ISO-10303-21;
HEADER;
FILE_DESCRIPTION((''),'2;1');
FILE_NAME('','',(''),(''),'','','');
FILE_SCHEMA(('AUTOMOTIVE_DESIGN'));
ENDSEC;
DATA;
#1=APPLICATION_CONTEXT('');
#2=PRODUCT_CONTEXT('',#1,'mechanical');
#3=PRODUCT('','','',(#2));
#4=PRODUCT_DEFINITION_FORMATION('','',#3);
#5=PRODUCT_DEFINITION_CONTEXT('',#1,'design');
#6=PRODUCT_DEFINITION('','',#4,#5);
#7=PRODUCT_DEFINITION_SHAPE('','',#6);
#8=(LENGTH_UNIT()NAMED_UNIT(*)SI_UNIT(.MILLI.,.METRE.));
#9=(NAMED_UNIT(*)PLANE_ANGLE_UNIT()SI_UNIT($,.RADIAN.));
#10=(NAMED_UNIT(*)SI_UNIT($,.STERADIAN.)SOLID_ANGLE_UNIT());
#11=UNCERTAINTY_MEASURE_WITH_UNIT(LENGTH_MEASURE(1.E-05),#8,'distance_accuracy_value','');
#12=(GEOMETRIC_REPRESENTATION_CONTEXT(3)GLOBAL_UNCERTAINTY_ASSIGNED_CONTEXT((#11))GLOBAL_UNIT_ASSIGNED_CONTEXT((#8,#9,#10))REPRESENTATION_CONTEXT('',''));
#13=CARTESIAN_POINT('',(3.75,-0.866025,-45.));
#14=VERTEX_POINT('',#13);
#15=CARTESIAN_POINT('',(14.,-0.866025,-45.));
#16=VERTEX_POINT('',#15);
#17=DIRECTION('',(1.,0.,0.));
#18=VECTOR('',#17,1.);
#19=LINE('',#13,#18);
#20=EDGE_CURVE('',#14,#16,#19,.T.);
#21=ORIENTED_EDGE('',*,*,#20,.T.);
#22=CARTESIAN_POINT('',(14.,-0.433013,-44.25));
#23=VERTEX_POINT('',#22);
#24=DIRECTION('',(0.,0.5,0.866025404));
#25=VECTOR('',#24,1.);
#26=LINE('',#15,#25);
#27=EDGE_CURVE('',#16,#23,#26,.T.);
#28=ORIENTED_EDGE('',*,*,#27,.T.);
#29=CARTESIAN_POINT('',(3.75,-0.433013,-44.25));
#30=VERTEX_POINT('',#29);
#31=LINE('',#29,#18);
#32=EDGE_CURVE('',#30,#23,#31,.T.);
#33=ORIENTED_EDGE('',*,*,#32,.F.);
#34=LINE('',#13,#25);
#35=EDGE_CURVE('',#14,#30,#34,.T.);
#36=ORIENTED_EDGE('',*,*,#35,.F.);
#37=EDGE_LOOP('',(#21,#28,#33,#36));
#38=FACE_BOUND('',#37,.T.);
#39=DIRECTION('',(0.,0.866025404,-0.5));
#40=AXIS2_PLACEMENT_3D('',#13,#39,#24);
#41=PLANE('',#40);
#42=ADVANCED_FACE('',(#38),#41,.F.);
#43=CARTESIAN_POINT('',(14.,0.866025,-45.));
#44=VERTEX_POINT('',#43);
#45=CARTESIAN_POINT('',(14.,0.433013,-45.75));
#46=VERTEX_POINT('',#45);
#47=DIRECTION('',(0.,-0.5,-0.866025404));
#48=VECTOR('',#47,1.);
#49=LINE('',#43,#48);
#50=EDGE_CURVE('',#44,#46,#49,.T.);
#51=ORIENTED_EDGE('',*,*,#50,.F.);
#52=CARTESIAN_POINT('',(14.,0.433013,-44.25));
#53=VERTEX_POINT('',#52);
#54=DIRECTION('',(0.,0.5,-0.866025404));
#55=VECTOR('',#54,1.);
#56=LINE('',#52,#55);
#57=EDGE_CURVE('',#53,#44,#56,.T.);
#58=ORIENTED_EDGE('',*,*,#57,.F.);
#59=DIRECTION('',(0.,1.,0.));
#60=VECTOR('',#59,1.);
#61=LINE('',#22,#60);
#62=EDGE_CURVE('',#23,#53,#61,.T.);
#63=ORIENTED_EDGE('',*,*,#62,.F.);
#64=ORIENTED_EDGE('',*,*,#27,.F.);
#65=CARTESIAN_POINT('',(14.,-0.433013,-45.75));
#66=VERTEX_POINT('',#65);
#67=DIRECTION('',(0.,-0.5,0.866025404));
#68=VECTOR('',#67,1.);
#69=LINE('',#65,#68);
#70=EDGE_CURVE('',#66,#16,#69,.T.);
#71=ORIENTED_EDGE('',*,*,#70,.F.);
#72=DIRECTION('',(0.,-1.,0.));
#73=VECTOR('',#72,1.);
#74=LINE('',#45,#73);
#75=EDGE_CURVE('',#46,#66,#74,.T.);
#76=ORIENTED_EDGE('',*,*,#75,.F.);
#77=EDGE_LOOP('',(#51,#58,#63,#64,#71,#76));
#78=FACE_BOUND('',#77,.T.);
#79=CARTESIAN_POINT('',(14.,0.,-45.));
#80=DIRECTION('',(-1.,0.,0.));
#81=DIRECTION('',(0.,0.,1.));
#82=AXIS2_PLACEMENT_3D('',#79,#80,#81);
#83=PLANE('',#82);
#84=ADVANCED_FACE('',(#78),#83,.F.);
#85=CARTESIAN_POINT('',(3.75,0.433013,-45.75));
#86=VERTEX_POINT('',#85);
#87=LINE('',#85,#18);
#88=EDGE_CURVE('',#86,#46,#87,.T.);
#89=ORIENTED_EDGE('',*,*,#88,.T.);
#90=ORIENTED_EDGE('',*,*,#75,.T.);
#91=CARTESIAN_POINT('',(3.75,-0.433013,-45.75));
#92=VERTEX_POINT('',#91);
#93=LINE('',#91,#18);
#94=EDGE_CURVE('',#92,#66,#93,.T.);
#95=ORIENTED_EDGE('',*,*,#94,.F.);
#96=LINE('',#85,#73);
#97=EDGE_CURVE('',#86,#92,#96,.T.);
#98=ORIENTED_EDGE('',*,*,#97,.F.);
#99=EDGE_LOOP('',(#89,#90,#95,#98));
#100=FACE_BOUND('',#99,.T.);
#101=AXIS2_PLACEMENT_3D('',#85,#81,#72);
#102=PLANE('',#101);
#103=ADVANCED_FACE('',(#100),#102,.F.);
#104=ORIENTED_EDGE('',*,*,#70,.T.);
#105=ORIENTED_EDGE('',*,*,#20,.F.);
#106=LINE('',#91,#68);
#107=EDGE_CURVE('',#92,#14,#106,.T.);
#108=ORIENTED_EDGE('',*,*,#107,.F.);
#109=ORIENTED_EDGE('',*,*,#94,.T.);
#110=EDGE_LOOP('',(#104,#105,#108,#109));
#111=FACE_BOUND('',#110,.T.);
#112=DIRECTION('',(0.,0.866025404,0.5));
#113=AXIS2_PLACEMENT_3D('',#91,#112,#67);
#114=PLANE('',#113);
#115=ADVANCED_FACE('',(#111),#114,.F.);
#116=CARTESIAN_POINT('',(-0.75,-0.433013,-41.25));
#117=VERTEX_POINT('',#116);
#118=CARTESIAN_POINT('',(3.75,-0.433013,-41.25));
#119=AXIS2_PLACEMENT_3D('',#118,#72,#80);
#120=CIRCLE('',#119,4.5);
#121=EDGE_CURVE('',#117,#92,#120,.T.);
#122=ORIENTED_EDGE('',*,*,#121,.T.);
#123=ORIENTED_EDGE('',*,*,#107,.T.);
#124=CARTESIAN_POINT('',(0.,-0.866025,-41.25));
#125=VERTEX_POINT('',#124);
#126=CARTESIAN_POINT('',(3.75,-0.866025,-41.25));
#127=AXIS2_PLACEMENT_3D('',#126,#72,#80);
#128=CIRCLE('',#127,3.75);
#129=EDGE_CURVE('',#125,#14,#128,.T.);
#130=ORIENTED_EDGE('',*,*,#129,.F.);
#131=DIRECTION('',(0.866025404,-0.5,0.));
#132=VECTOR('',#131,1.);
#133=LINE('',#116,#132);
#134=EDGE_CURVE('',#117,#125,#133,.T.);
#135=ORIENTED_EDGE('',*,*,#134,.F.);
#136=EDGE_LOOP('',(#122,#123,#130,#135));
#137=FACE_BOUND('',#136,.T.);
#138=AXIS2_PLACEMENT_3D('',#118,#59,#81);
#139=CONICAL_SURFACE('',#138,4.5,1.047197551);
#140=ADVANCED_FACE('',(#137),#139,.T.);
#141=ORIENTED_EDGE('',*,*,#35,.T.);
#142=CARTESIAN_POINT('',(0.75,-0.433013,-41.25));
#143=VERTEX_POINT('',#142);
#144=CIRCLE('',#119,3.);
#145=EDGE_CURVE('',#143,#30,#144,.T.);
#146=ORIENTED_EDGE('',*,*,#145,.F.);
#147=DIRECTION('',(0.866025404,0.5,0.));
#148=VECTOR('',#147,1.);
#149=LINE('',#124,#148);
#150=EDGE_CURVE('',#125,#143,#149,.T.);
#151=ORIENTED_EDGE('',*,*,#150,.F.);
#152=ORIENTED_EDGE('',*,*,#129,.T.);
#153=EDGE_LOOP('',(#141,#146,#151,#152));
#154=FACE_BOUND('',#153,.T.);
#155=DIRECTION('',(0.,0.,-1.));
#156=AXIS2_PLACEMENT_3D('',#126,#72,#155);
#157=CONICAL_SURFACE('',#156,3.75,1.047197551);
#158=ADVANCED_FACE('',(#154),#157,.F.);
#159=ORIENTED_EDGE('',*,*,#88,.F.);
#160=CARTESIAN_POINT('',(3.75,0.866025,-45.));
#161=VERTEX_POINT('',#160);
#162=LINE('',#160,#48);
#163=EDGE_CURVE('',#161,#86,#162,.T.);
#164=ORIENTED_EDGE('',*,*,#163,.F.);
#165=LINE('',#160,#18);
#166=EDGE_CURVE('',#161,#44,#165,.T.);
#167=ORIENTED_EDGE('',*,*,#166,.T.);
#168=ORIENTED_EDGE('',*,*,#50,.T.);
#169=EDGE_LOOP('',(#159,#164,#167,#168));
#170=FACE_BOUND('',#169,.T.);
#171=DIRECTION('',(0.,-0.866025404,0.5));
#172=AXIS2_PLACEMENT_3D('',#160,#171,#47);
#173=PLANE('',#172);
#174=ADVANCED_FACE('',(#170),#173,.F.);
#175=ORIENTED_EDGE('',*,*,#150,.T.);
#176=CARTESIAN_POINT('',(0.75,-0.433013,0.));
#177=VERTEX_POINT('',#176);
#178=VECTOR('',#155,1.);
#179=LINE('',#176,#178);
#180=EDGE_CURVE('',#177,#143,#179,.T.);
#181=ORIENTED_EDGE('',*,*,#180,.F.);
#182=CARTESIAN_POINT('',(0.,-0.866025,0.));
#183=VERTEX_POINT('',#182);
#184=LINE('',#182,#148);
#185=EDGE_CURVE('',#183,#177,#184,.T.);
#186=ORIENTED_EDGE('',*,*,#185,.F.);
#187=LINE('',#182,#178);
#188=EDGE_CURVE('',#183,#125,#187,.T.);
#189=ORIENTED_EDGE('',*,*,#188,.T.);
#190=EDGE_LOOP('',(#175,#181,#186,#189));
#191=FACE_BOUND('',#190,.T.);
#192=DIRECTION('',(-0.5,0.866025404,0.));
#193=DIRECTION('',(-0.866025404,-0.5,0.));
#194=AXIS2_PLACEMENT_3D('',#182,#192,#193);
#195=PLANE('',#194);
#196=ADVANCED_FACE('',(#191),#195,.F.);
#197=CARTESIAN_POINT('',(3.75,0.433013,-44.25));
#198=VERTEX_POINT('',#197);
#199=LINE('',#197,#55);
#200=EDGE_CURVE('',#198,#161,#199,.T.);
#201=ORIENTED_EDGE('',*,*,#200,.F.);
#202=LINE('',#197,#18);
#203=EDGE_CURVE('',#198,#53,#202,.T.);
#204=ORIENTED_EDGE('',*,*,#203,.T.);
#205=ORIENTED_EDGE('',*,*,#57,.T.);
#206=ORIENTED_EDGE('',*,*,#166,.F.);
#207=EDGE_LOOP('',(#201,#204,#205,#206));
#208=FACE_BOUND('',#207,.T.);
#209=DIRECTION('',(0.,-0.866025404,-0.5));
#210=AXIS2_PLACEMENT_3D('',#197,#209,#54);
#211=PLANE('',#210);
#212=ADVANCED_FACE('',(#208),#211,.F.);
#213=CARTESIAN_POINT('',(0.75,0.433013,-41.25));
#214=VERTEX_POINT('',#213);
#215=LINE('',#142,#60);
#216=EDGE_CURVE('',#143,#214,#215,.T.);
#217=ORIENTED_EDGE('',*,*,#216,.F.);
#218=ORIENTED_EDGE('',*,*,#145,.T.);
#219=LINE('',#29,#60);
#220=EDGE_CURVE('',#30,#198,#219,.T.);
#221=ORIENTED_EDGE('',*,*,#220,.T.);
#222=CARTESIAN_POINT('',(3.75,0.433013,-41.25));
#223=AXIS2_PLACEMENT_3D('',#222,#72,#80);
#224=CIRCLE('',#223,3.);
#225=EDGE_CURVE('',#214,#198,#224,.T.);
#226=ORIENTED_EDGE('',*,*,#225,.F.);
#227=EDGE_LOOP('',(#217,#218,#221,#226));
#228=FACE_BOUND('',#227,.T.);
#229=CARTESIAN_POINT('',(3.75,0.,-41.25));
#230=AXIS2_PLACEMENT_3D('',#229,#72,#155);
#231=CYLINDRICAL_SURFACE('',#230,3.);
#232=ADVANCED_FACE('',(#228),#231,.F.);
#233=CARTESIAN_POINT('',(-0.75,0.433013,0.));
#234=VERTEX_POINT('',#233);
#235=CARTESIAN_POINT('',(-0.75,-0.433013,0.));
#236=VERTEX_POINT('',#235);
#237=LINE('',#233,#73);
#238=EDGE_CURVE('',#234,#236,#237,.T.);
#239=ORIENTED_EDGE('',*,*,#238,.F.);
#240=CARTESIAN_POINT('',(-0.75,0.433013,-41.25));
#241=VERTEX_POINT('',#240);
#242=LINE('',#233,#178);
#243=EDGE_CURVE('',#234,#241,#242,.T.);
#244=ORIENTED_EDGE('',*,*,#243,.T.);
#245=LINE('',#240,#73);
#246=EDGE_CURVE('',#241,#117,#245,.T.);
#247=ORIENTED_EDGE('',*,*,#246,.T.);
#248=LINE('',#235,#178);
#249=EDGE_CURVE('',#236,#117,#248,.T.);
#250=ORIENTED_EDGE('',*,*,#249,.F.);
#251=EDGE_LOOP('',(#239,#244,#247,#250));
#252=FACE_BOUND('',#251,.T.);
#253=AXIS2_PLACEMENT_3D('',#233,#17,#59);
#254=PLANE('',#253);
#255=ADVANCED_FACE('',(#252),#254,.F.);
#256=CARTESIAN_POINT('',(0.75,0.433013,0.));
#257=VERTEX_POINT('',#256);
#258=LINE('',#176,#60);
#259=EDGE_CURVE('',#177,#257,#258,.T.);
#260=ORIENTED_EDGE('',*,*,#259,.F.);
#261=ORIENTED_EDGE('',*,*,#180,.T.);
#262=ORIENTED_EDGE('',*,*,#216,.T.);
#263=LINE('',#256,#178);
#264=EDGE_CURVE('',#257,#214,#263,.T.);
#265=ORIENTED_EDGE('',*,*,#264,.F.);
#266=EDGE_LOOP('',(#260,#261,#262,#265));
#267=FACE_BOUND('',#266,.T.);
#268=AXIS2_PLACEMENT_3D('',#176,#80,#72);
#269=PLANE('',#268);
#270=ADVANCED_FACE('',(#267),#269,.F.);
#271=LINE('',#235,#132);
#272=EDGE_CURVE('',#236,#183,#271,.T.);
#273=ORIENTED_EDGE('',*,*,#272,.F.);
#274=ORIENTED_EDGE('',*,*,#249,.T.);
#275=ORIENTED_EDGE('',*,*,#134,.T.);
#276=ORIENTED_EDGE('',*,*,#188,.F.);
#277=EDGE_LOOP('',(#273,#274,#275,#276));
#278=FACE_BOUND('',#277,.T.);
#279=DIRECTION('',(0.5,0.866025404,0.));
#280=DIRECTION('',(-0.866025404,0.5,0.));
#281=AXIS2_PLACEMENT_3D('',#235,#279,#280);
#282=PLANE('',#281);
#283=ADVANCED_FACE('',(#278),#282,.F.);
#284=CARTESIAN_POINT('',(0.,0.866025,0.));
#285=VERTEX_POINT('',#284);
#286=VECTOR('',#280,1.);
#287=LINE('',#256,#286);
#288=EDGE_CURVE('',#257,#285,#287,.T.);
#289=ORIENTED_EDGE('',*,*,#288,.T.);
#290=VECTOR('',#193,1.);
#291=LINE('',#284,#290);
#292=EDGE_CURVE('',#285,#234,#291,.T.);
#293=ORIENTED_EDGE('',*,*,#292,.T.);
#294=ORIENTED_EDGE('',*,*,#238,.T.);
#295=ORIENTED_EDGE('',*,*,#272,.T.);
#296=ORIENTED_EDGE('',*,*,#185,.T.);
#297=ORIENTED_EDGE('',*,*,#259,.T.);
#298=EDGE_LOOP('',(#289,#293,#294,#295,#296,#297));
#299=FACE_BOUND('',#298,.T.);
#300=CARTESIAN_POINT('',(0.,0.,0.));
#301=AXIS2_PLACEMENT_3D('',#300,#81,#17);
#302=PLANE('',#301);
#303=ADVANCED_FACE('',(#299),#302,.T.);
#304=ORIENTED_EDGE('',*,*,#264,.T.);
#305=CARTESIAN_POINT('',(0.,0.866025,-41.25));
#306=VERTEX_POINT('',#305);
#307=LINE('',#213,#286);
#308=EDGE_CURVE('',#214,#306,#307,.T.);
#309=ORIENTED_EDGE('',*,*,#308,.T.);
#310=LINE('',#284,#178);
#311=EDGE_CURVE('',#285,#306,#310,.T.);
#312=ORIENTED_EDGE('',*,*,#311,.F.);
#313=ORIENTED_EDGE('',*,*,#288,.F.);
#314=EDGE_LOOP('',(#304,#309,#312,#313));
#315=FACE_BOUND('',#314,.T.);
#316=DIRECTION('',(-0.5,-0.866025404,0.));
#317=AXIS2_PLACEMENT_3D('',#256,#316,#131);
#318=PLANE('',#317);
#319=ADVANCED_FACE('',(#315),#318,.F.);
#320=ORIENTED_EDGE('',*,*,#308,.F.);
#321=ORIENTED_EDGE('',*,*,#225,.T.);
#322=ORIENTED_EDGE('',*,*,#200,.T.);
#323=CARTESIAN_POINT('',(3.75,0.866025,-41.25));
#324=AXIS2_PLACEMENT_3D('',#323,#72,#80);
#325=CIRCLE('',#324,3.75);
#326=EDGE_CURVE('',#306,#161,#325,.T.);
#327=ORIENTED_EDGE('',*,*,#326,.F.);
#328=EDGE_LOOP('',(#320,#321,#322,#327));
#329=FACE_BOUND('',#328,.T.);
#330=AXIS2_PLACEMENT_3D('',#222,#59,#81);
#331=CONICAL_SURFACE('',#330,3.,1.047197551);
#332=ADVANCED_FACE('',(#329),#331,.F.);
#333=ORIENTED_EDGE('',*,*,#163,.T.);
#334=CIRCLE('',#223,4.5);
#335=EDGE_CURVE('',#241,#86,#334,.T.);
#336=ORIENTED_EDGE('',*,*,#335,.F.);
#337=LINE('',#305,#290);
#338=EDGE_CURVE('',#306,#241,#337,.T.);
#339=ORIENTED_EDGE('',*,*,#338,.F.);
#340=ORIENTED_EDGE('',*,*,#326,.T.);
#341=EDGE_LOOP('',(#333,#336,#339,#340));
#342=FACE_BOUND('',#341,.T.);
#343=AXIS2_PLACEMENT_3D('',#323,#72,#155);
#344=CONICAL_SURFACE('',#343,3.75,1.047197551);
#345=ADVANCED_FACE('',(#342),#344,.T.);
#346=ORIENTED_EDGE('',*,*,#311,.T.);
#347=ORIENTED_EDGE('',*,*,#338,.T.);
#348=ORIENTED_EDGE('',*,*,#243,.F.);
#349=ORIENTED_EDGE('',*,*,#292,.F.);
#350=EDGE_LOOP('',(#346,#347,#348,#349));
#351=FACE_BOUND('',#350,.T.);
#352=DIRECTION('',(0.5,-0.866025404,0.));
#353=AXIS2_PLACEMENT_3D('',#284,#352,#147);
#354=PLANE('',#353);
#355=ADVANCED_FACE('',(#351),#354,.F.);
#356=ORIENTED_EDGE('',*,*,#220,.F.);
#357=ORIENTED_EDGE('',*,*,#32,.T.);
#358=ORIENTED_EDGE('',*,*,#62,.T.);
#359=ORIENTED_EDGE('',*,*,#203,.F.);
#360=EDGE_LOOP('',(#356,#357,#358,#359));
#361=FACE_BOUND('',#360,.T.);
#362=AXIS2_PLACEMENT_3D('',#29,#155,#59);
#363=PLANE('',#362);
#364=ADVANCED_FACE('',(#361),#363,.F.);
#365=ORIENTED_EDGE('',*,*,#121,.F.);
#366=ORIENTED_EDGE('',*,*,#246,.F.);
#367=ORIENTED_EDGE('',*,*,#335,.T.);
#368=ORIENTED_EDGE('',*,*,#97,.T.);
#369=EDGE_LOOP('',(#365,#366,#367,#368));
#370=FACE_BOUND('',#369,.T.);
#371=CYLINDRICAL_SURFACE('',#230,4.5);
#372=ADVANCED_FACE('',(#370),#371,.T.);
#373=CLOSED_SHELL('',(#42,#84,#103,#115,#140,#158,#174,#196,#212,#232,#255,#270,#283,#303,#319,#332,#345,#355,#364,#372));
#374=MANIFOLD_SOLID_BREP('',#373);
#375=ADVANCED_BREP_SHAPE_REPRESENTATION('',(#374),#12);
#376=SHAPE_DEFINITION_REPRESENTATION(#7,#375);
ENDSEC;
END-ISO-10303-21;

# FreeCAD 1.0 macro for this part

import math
import FreeCAD as App
import Part
import Sketcher
from FreeCAD import Vector
Q = App.Units.Quantity


def add_polygon(sketch, points):
    """Adds a closed chain of lines whose ends are joined by coincident constraints."""
    first, n = sketch.GeometryCount, len(points)
    for a, b in zip(points, points[1:] + points[:1]):
        sketch.addGeometry(Part.LineSegment(App.Vector(*a, 0), App.Vector(*b, 0)), False)
    for i in range(n):
        sketch.addConstraint(Sketcher.Constraint("Coincident", first + i, 2, first + (i + 1) % n, 1))

doc = App.newDocument("Part")
body = doc.addObject("PartDesign::Body", "Body")

sketch1 = body.newObject("Sketcher::SketchObject", "Sketch")
sketch1.AttachmentSupport = (doc.getObject("XY_Plane"), [""])
sketch1.MapMode = "FlatFace"
add_polygon(sketch1, [(0, -0.866025), (0.75, -0.433013), (0.75, 0.433013), (0, 0.866025), (-0.75, 0.433013), (-0.75, -0.433013)])
sketch1.addConstraint([
    Sketcher.Constraint("Vertical", 1),
    Sketcher.Constraint("Vertical", 4),
    Sketcher.Constraint("Symmetric", 0, 2, 3, 2, -1, 1),
    Sketcher.Constraint("Symmetric", 2, 2, 5, 2, -1, 1),
    Sketcher.Constraint("PointOnObject", 2, 2, -2),
    Sketcher.Constraint("Parallel", 2, 5),
    Sketcher.Constraint("Horizontal", 1, 2, 3, 2),
    Sketcher.Constraint("Angle", 0, Q("30 deg")),
    Sketcher.Constraint("DistanceX", 3, 2, 1, 2, Q("1.5 mm")),
    Sketcher.Constraint("DistanceY", 1, 1, 1, 2, Q("0.866025 mm")),
])

sketch2 = body.newObject("Sketcher::SketchObject", "Sketch001")
sketch2.AttachmentSupport = (doc.getObject("XZ_Plane"), [""])
sketch2.MapMode = "FlatFace"
sketch2.addGeometry([
    Part.LineSegment(Vector(0, 0, 0), Vector(0, -41.25, 0)),
    Part.ArcOfCircle(Part.Circle(Vector(3.75, -41.25, 0), Vector(0, 0, 1), 3.75), math.radians(-180), math.radians(-90)),
    Part.LineSegment(Vector(3.75, -45, 0), Vector(14, -45, 0)),
], False)
sketch2.addConstraint([
    Sketcher.Constraint("Tangent", 0, 2, 1, 1),
    Sketcher.Constraint("Tangent", 1, 2, 2, 1),
    Sketcher.Constraint("Vertical", 0),
    Sketcher.Constraint("Horizontal", 2),
    Sketcher.Constraint("Coincident", 0, 1, -1, 1),
    Sketcher.Constraint("Radius", 1, Q("3.75 mm")),
    Sketcher.Constraint("DistanceY", 1, 2, -1, 1, Q("45 mm")),
    Sketcher.Constraint("DistanceX", -1, 1, 2, 2, Q("14 mm")),
])
doc.recompute()

additivepipe = body.newObject("PartDesign::AdditivePipe", "AdditivePipe")
additivepipe.Profile = sketch1
additivepipe.Spine = (sketch2, ["Edge1", "Edge2", "Edge3"])

doc.recompute()
